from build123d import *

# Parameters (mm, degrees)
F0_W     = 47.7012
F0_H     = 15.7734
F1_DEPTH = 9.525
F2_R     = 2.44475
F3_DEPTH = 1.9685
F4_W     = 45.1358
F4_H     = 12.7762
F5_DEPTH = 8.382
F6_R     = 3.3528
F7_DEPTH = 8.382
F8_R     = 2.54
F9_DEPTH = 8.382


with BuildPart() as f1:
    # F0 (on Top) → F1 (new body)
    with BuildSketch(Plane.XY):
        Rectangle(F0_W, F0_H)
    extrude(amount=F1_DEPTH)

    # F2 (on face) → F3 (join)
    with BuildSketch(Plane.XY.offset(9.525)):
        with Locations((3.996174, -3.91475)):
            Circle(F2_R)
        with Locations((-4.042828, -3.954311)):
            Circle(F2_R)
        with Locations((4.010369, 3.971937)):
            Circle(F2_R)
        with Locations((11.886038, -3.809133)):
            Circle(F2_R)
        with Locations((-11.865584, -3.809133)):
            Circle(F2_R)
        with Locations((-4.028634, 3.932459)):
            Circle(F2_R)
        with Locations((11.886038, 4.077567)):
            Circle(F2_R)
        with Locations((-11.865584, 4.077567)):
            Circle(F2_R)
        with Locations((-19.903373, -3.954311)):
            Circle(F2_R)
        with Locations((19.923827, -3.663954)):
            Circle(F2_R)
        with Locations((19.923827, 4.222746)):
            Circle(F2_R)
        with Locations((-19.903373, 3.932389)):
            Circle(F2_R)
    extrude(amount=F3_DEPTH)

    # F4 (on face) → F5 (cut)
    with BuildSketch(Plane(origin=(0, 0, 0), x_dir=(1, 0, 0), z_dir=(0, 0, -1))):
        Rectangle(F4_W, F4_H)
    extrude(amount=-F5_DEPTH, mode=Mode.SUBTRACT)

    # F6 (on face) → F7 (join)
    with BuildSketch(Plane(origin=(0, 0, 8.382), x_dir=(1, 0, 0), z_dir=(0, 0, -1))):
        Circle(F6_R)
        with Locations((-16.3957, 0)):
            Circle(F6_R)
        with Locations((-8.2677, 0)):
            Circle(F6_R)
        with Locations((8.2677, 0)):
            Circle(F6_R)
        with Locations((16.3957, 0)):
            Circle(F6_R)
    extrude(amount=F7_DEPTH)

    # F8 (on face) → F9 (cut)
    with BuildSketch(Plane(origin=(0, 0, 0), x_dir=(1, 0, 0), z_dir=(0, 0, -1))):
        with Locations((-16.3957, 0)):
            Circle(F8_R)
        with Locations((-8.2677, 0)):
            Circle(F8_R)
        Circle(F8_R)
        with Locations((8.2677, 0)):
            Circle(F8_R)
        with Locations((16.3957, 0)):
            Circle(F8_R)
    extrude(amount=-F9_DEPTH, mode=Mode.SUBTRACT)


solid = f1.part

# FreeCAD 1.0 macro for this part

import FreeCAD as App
import Part
import Sketcher
from FreeCAD import Vector
Q = App.Units.Quantity


def add_polygon(sketch, points):
    """Adds a closed chain of lines whose ends are joined by coincident constraints."""
    first, n = sketch.GeometryCount, len(points)
    for a, b in zip(points, points[1:] + points[:1]):
        sketch.addGeometry(Part.LineSegment(App.Vector(*a, 0), App.Vector(*b, 0)), False)
    for i in range(n):
        sketch.addConstraint(Sketcher.Constraint("Coincident", first + i, 2, first + (i + 1) % n, 1))

doc = App.newDocument("Part")
body = doc.addObject("PartDesign::Body", "Body")

sketch1 = body.newObject("Sketcher::SketchObject", "Sketch")
sketch1.AttachmentSupport = (doc.getObject("XY_Plane"), [""])
sketch1.MapMode = "FlatFace"
add_polygon(sketch1, [(-24, 8), (-24, -8), (24, -8), (24, 8)])
sketch1.addConstraint([
    Sketcher.Constraint("Vertical", 0),
    Sketcher.Constraint("Horizontal", 1),
    Sketcher.Constraint("Vertical", 2),
    Sketcher.Constraint("Horizontal", 3),
    Sketcher.Constraint("Symmetric", 0, 2, 2, 2, -1, 1),
    Sketcher.Constraint("DistanceX", 1, 1, 1, 2, Q("1.878 in")),
    Sketcher.Constraint("DistanceY", 0, 2, 0, 1, Q("0.621 in")),
])
pad1 = body.newObject("PartDesign::Pad", "Pad")
pad1.Profile = sketch1
pad1.Length = Q("0.375 in")

sketch2 = body.newObject("Sketcher::SketchObject", "Sketch001")
sketch2.AttachmentSupport = (doc.getObject("XY_Plane"), [""])
sketch2.MapMode = "FlatFace"
sketch2.AttachmentOffset = App.Placement(Vector(0, 0, 0.375 * 25.4), App.Rotation())
sketch2.addGeometry([
    Part.Circle(Vector(4, -3.9, 0), Vector(0, 0, 1), 2.4),
    Part.Circle(Vector(-4, -4, 0), Vector(0, 0, 1), 2.4),
    Part.Circle(Vector(4, 4, 0), Vector(0, 0, 1), 2.4),
    Part.Circle(Vector(11.9, -3.8, 0), Vector(0, 0, 1), 2.4),
    Part.Circle(Vector(-11.9, -3.8, 0), Vector(0, 0, 1), 2.4),
    Part.Circle(Vector(-4, 3.9, 0), Vector(0, 0, 1), 2.4),
    Part.Circle(Vector(11.9, 4.1, 0), Vector(0, 0, 1), 2.4),
    Part.Circle(Vector(-11.9, 4.1, 0), Vector(0, 0, 1), 2.4),
    Part.Circle(Vector(-19.9, -4, 0), Vector(0, 0, 1), 2.4),
    Part.Circle(Vector(19.9, -3.7, 0), Vector(0, 0, 1), 2.4),
    Part.Circle(Vector(19.9, 4.2, 0), Vector(0, 0, 1), 2.4),
    Part.Circle(Vector(-19.9, 3.9, 0), Vector(0, 0, 1), 2.4),
], False)
sketch2.addConstraint([
    Sketcher.Constraint("Equal", 0, 1),
    Sketcher.Constraint("Equal", 1, 2),
    Sketcher.Constraint("Equal", 2, 3),
    Sketcher.Constraint("Equal", 3, 4),
    Sketcher.Constraint("Equal", 4, 5),
    Sketcher.Constraint("Equal", 5, 6),
    Sketcher.Constraint("Equal", 6, 7),
    Sketcher.Constraint("Equal", 7, 8),
    Sketcher.Constraint("Equal", 8, 9),
    Sketcher.Constraint("Equal", 9, 10),
    Sketcher.Constraint("Equal", 10, 11),
    Sketcher.Constraint("Horizontal", 3, 3, 4, 3),
    Sketcher.Constraint("Horizontal", 6, 3, 7, 3),
    Sketcher.Constraint("Horizontal", 1, 3, 8, 3),
    Sketcher.Constraint("Vertical", 3, 3, 6, 3),
    Sketcher.Constraint("Vertical", 4, 3, 7, 3),
    Sketcher.Constraint("Vertical", 9, 3, 10, 3),
    Sketcher.Constraint("Vertical", 8, 3, 11, 3),
    Sketcher.Constraint("Diameter", 0, Q("0.1925 in")),
    Sketcher.Constraint("DistanceY", 3, 3, 6, 3, Q("0.3105 in")),
    Sketcher.Constraint("DistanceY", 9, 3, 10, 3, Q("0.3105 in")),
    Sketcher.Constraint("DistanceY", 8, 3, 11, 3, Q("0.3105 in")),
    Sketcher.Constraint("DistanceY", 0, 3, -1, 1, Q("3.91475 mm")),
    Sketcher.Constraint("DistanceY", 1, 3, -1, 1, Q("3.954311 mm")),
    Sketcher.Constraint("DistanceX", -1, 1, 2, 3, Q("4.010369 mm")),
    Sketcher.Constraint("DistanceY", -1, 1, 5, 3, Q("3.932459 mm")),
    Sketcher.Constraint("DistanceY", 1, 3, 2, 3, Q("7.926248 mm")),
    Sketcher.Constraint("DistanceX", 2, 3, 3, 3, Q("7.875669 mm")),
    Sketcher.Constraint("DistanceY", 3, 3, 2, 3, Q("7.78107 mm")),
    Sketcher.Constraint("DistanceX", 4, 3, 3, 3, Q("23.751622 mm")),
    Sketcher.Constraint("DistanceX", 4, 3, 5, 3, Q("7.83695 mm")),
    Sketcher.Constraint("DistanceX", 8, 3, 4, 3, Q("8.037789 mm")),
    Sketcher.Constraint("DistanceX", 3, 3, 9, 3, Q("8.037789 mm")),
    Sketcher.Constraint("DistanceY", 3, 3, 9, 3, Q("0.145179 mm")),
    Sketcher.Constraint("DistanceX", -1, 1, 0, 3, Q("3.996174 mm")),
    Sketcher.Constraint("DistanceX", 1, 3, -1, 1, Q("4.042828 mm")),
])
pad2 = body.newObject("PartDesign::Pad", "Pad001")
pad2.Profile = sketch2
pad2.Length = Q("0.0775 in")

sketch3 = body.newObject("Sketcher::SketchObject", "Sketch002")
sketch3.AttachmentSupport = (doc.getObject("XY_Plane"), [""])
sketch3.MapMode = "FlatFace"
add_polygon(sketch3, [(-23, -6), (-23, 6), (23, 6), (23, -6)])
sketch3.addConstraint([
    Sketcher.Constraint("Vertical", 0),
    Sketcher.Constraint("Horizontal", 1),
    Sketcher.Constraint("Vertical", 2),
    Sketcher.Constraint("Horizontal", 3),
    Sketcher.Constraint("Symmetric", 0, 2, 2, 2, -1, 1),
    Sketcher.Constraint("DistanceX", 1, 1, 1, 2, Q("1.777 in")),
    Sketcher.Constraint("DistanceY", 0, 1, 0, 2, Q("0.503 in")),
])
pocket1 = body.newObject("PartDesign::Pocket", "Pocket")
pocket1.Profile = sketch3
pocket1.Length = Q("0.33 in")
pocket1.Reversed = True

sketch4 = body.newObject("Sketcher::SketchObject", "Sketch003")
sketch4.AttachmentSupport = (doc.getObject("XY_Plane"), [""])
sketch4.MapMode = "FlatFace"
sketch4.AttachmentOffset = App.Placement(Vector(0, 0, 0.33 * 25.4), App.Rotation())
sketch4.addGeometry([
    Part.Circle(Vector(0, 0, 0), Vector(0, 0, 1), 3.4),
    Part.Circle(Vector(-16.4, 0, 0), Vector(0, 0, 1), 3.4),
    Part.Circle(Vector(-8.3, 0, 0), Vector(0, 0, 1), 3.4),
    Part.Circle(Vector(8.3, 0, 0), Vector(0, 0, 1), 3.4),
    Part.Circle(Vector(16.4, 0, 0), Vector(0, 0, 1), 3.4),
], False)
sketch4.addConstraint([
    Sketcher.Constraint("Coincident", 0, 3, -1, 1),
    Sketcher.Constraint("Equal", 0, 1),
    Sketcher.Constraint("Equal", 1, 2),
    Sketcher.Constraint("Equal", 2, 3),
    Sketcher.Constraint("Equal", 3, 4),
    Sketcher.Constraint("Symmetric", 2, 3, 3, 3, -1, 1),
    Sketcher.Constraint("Symmetric", 1, 3, 4, 3, -1, 1),
    Sketcher.Constraint("PointOnObject", 1, 3, -1),
    Sketcher.Constraint("PointOnObject", 2, 3, -1),
    Sketcher.Constraint("Diameter", 0, Q("0.264 in")),
    Sketcher.Constraint("DistanceX", 1, 3, 2, 3, Q("0.32 in")),
    Sketcher.Constraint("DistanceX", 2, 3, 3, 3, Q("0.651 in")),
])
pad3 = body.newObject("PartDesign::Pad", "Pad002")
pad3.Profile = sketch4
pad3.Length = Q("0.33 in")
pad3.Reversed = True

sketch5 = body.newObject("Sketcher::SketchObject", "Sketch004")
sketch5.AttachmentSupport = (doc.getObject("XY_Plane"), [""])
sketch5.MapMode = "FlatFace"
sketch5.addGeometry([
    Part.Circle(Vector(-16.4, 0, 0), Vector(0, 0, 1), 2.5),
    Part.Circle(Vector(-8.3, 0, 0), Vector(0, 0, 1), 2.5),
    Part.Circle(Vector(0, 0, 0), Vector(0, 0, 1), 2.5),
    Part.Circle(Vector(8.3, 0, 0), Vector(0, 0, 1), 2.5),
    Part.Circle(Vector(16.4, 0, 0), Vector(0, 0, 1), 2.5),
], False)
sketch5.addConstraint([
    Sketcher.Constraint("Coincident", 2, 3, -1, 1),
    Sketcher.Constraint("Equal", 0, 1),
    Sketcher.Constraint("Equal", 1, 2),
    Sketcher.Constraint("Equal", 2, 3),
    Sketcher.Constraint("Equal", 3, 4),
    Sketcher.Constraint("Symmetric", 1, 3, 3, 3, -1, 1),
    Sketcher.Constraint("Symmetric", 0, 3, 4, 3, -1, 1),
    Sketcher.Constraint("PointOnObject", 0, 3, -1),
    Sketcher.Constraint("PointOnObject", 1, 3, -1),
    Sketcher.Constraint("Diameter", 0, Q("0.2 in")),
    Sketcher.Constraint("DistanceX", 0, 3, 1, 3, Q("0.32 in")),
    Sketcher.Constraint("DistanceX", 1, 3, 3, 3, Q("0.651 in")),
])
pocket2 = body.newObject("PartDesign::Pocket", "Pocket001")
pocket2.Profile = sketch5
pocket2.Length = Q("0.33 in")
pocket2.Reversed = True

doc.recompute()
